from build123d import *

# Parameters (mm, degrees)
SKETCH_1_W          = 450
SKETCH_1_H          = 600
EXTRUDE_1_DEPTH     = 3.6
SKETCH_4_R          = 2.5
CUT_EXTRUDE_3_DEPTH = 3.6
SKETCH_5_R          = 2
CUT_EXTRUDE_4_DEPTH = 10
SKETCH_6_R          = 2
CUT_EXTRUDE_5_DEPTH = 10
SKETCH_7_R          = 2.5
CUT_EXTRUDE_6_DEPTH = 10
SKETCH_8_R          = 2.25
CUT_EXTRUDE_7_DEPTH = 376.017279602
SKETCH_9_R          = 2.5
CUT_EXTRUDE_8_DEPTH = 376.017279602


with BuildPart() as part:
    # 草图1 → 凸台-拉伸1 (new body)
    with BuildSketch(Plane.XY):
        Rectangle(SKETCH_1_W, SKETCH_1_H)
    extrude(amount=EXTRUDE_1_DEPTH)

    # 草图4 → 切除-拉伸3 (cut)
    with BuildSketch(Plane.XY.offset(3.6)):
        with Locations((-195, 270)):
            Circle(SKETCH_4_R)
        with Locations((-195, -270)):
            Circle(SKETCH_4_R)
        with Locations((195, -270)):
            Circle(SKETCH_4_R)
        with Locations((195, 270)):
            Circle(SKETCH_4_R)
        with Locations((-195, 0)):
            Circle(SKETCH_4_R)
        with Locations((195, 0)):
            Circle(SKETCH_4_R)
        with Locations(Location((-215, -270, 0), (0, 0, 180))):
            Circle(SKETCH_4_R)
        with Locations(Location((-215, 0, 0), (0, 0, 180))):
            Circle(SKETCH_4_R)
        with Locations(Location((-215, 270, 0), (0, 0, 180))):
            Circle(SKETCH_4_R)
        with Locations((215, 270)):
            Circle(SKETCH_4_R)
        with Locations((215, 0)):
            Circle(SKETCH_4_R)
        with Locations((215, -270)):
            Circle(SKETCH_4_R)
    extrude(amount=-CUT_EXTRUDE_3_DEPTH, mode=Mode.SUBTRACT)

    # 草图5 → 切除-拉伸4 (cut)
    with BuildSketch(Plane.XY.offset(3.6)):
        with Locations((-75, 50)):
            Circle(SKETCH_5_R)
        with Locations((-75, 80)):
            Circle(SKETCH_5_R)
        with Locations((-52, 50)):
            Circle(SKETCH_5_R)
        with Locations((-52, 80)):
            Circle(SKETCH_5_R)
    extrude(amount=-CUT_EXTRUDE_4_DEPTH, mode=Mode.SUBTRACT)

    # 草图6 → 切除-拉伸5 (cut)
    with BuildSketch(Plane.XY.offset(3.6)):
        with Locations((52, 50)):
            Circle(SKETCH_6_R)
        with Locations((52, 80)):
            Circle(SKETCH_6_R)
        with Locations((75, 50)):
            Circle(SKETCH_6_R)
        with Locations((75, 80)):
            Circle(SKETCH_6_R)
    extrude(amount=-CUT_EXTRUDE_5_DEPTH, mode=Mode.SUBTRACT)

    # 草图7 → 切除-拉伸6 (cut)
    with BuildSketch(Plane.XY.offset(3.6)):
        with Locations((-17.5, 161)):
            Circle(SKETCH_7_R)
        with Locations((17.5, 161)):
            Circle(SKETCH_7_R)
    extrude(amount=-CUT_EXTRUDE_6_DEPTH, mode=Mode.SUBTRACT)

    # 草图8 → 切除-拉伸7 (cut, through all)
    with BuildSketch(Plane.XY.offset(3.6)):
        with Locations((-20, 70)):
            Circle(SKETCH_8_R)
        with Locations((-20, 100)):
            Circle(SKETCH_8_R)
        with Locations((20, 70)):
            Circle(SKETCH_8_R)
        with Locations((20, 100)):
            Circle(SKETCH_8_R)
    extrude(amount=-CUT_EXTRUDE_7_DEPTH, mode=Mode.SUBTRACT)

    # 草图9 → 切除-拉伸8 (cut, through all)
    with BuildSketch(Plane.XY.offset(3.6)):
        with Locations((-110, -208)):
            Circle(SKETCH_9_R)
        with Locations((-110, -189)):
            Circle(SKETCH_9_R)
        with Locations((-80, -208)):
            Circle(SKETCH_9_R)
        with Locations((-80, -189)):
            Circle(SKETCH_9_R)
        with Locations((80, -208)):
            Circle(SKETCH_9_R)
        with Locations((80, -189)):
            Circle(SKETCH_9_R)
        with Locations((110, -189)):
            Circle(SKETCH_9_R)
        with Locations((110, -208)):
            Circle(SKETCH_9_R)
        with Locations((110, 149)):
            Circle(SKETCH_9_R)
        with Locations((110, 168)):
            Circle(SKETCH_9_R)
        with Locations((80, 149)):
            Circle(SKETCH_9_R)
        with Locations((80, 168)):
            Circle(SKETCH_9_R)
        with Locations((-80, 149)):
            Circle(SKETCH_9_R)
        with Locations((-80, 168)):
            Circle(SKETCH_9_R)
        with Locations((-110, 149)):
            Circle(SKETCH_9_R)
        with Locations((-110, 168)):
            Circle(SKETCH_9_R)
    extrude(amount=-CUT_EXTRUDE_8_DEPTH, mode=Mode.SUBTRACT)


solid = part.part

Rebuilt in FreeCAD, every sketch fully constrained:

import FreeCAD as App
import Part
import Sketcher

V = App.Vector
Q = App.Units.Quantity


def add_polygon(sketch, points):
    """Adds a closed chain of lines whose ends are joined by coincident constraints."""
    first, n = sketch.GeometryCount, len(points)
    for a, b in zip(points, points[1:] + points[:1]):
        sketch.addGeometry(Part.LineSegment(App.Vector(*a, 0), App.Vector(*b, 0)), False)
    for i in range(n):
        sketch.addConstraint(Sketcher.Constraint("Coincident", first + i, 2, first + (i + 1) % n, 1))

doc = App.newDocument("Part")
body = doc.addObject("PartDesign::Body", "Body")

sketch1 = body.newObject("Sketcher::SketchObject", "Sketch")
sketch1.AttachmentSupport = (doc.getObject("XY_Plane"), [""])
sketch1.MapMode = "FlatFace"
add_polygon(sketch1, [(-225, 300), (-225, -300), (225, -300), (225, 300)])
sketch1.addConstraint(Sketcher.Constraint("Vertical", 0))
sketch1.addConstraint(Sketcher.Constraint("Horizontal", 1))
sketch1.addConstraint(Sketcher.Constraint("Vertical", 2))
sketch1.addConstraint(Sketcher.Constraint("Horizontal", 3))
sketch1.addConstraint(Sketcher.Constraint("Symmetric", 0, 2, 2, 2, -1, 1))
sketch1.addConstraint(Sketcher.Constraint("DistanceX", 1, 1, 1, 2, Q("450 mm")))
sketch1.addConstraint(Sketcher.Constraint("DistanceY", 0, 2, 0, 1, Q("600 mm")))
pad1 = body.newObject("PartDesign::Pad", "Pad")
pad1.Profile = sketch1
pad1.Length = 3.6

sketch2 = body.newObject("Sketcher::SketchObject", "Sketch001")
sketch2.AttachmentSupport = (doc.getObject("XY_Plane"), [""])
sketch2.MapMode = "FlatFace"
sketch2.AttachmentOffset = App.Placement(V(0, 0, 3.6), App.Rotation())
sketch2.addGeometry(Part.Circle(V(-195, 270, 0), V(0, 0, 1), 2.5), False)
sketch2.addGeometry(Part.Circle(V(-195, -270, 0), V(0, 0, 1), 2.5), False)
sketch2.addGeometry(Part.Circle(V(195, -270, 0), V(0, 0, 1), 2.5), False)
sketch2.addGeometry(Part.Circle(V(195, 270, 0), V(0, 0, 1), 2.5), False)
sketch2.addGeometry(Part.Circle(V(-195, 0, 0), V(0, 0, 1), 2.5), False)
sketch2.addGeometry(Part.Circle(V(195, 0, 0), V(0, 0, 1), 2.5), False)
sketch2.addGeometry(Part.Circle(V(-215, -270, 0), V(0, 0, 1), 2.5), False)
sketch2.addGeometry(Part.Circle(V(-215, 0, 0), V(0, 0, 1), 2.5), False)
sketch2.addGeometry(Part.Circle(V(-215, 270, 0), V(0, 0, 1), 2.5), False)
sketch2.addGeometry(Part.Circle(V(215, 270, 0), V(0, 0, 1), 2.5), False)
sketch2.addGeometry(Part.Circle(V(215, 0, 0), V(0, 0, 1), 2.5), False)
sketch2.addGeometry(Part.Circle(V(215, -270, 0), V(0, 0, 1), 2.5), False)
sketch2.addConstraint(Sketcher.Constraint("Equal", 0, 1))
sketch2.addConstraint(Sketcher.Constraint("Equal", 1, 2))
sketch2.addConstraint(Sketcher.Constraint("Equal", 2, 3))
sketch2.addConstraint(Sketcher.Constraint("Equal", 3, 4))
sketch2.addConstraint(Sketcher.Constraint("Equal", 4, 5))
sketch2.addConstraint(Sketcher.Constraint("Equal", 5, 6))
sketch2.addConstraint(Sketcher.Constraint("Equal", 6, 7))
sketch2.addConstraint(Sketcher.Constraint("Equal", 7, 8))
sketch2.addConstraint(Sketcher.Constraint("Equal", 8, 9))
sketch2.addConstraint(Sketcher.Constraint("Equal", 9, 10))
sketch2.addConstraint(Sketcher.Constraint("Equal", 10, 11))
sketch2.addConstraint(Sketcher.Constraint("Symmetric", 0, 3, 2, 3, -1, 1))
sketch2.addConstraint(Sketcher.Constraint("Symmetric", 1, 3, 3, 3, -1, 1))
sketch2.addConstraint(Sketcher.Constraint("Symmetric", 4, 3, 5, 3, -1, 1))
sketch2.addConstraint(Sketcher.Constraint("Symmetric", 6, 3, 9, 3, -1, 1))
sketch2.addConstraint(Sketcher.Constraint("Symmetric", 7, 3, 10, 3, -1, 1))
sketch2.addConstraint(Sketcher.Constraint("Symmetric", 8, 3, 11, 3, -1, 1))
sketch2.addConstraint(Sketcher.Constraint("Symmetric", 1, 3, 2, 3, -2))
sketch2.addConstraint(Sketcher.Constraint("Symmetric", 8, 3, 9, 3, -2))
sketch2.addConstraint(Sketcher.Constraint("PointOnObject", 4, 3, -1))
sketch2.addConstraint(Sketcher.Constraint("PointOnObject", 7, 3, -1))
sketch2.addConstraint(Sketcher.Constraint("Horizontal", 2, 3, 6, 3))
sketch2.addConstraint(Sketcher.Constraint("Vertical", 1, 3, 4, 3))
sketch2.addConstraint(Sketcher.Constraint("Vertical", 6, 3, 7, 3))
sketch2.addConstraint(Sketcher.Constraint("Diameter", 0, Q("5 mm")))
sketch2.addConstraint(Sketcher.Constraint("DistanceX", 0, 3, -1, 1, Q("195 mm")))
sketch2.addConstraint(Sketcher.Constraint("DistanceY", -1, 1, 0, 3, Q("270 mm")))
sketch2.addConstraint(Sketcher.Constraint("DistanceX", 6, 3, -1, 1, Q("215 mm")))
pocket1 = body.newObject("PartDesign::Pocket", "Pocket")
pocket1.Profile = sketch2
pocket1.Length = 3.6

sketch3 = body.newObject("Sketcher::SketchObject", "Sketch002")
sketch3.AttachmentSupport = (doc.getObject("XY_Plane"), [""])
sketch3.MapMode = "FlatFace"
sketch3.AttachmentOffset = App.Placement(V(0, 0, 3.6), App.Rotation())
sketch3.addGeometry(Part.Circle(V(-75, 50, 0), V(0, 0, 1), 2), False)
sketch3.addGeometry(Part.Circle(V(-75, 80, 0), V(0, 0, 1), 2), False)
sketch3.addGeometry(Part.Circle(V(-52, 50, 0), V(0, 0, 1), 2), False)
sketch3.addGeometry(Part.Circle(V(-52, 80, 0), V(0, 0, 1), 2), False)
sketch3.addConstraint(Sketcher.Constraint("Equal", 0, 1))
sketch3.addConstraint(Sketcher.Constraint("Equal", 1, 2))
sketch3.addConstraint(Sketcher.Constraint("Equal", 2, 3))
sketch3.addConstraint(Sketcher.Constraint("Horizontal", 0, 3, 2, 3))
sketch3.addConstraint(Sketcher.Constraint("Horizontal", 1, 3, 3, 3))
sketch3.addConstraint(Sketcher.Constraint("Vertical", 0, 3, 1, 3))
sketch3.addConstraint(Sketcher.Constraint("Vertical", 2, 3, 3, 3))
sketch3.addConstraint(Sketcher.Constraint("Diameter", 0, Q("4 mm")))
sketch3.addConstraint(Sketcher.Constraint("DistanceX", 0, 3, -1, 1, Q("75 mm")))
sketch3.addConstraint(Sketcher.Constraint("DistanceY", -1, 1, 0, 3, Q("50 mm")))
sketch3.addConstraint(Sketcher.Constraint("DistanceY", -1, 1, 1, 3, Q("80 mm")))
sketch3.addConstraint(Sketcher.Constraint("DistanceX", 2, 3, -1, 1, Q("52 mm")))
pocket2 = body.newObject("PartDesign::Pocket", "Pocket001")
pocket2.Profile = sketch3
pocket2.Length = 10

sketch4 = body.newObject("Sketcher::SketchObject", "Sketch003")
sketch4.AttachmentSupport = (doc.getObject("XY_Plane"), [""])
sketch4.MapMode = "FlatFace"
sketch4.AttachmentOffset = App.Placement(V(0, 0, 3.6), App.Rotation())
sketch4.addGeometry(Part.Circle(V(52, 50, 0), V(0, 0, 1), 2), False)
sketch4.addGeometry(Part.Circle(V(52, 80, 0), V(0, 0, 1), 2), False)
sketch4.addGeometry(Part.Circle(V(75, 50, 0), V(0, 0, 1), 2), False)
sketch4.addGeometry(Part.Circle(V(75, 80, 0), V(0, 0, 1), 2), False)
sketch4.addConstraint(Sketcher.Constraint("Equal", 0, 1))
sketch4.addConstraint(Sketcher.Constraint("Equal", 1, 2))
sketch4.addConstraint(Sketcher.Constraint("Equal", 2, 3))
sketch4.addConstraint(Sketcher.Constraint("Horizontal", 0, 3, 2, 3))
sketch4.addConstraint(Sketcher.Constraint("Horizontal", 1, 3, 3, 3))
sketch4.addConstraint(Sketcher.Constraint("Vertical", 0, 3, 1, 3))
sketch4.addConstraint(Sketcher.Constraint("Vertical", 2, 3, 3, 3))
sketch4.addConstraint(Sketcher.Constraint("Diameter", 0, Q("4 mm")))
sketch4.addConstraint(Sketcher.Constraint("DistanceX", -1, 1, 0, 3, Q("52 mm")))
sketch4.addConstraint(Sketcher.Constraint("DistanceY", -1, 1, 0, 3, Q("50 mm")))
sketch4.addConstraint(Sketcher.Constraint("DistanceY", -1, 1, 1, 3, Q("80 mm")))
sketch4.addConstraint(Sketcher.Constraint("DistanceX", -1, 1, 2, 3, Q("75 mm")))
pocket3 = body.newObject("PartDesign::Pocket", "Pocket002")
pocket3.Profile = sketch4
pocket3.Length = 10

sketch5 = body.newObject("Sketcher::SketchObject", "Sketch004")
sketch5.AttachmentSupport = (doc.getObject("XY_Plane"), [""])
sketch5.MapMode = "FlatFace"
sketch5.AttachmentOffset = App.Placement(V(0, 0, 3.6), App.Rotation())
sketch5.addGeometry(Part.Circle(V(-17.5, 161, 0), V(0, 0, 1), 2.5), False)
sketch5.addGeometry(Part.Circle(V(17.5, 161, 0), V(0, 0, 1), 2.5), False)
sketch5.addConstraint(Sketcher.Constraint("Equal", 0, 1))
sketch5.addConstraint(Sketcher.Constraint("Symmetric", 0, 3, 1, 3, -2))
sketch5.addConstraint(Sketcher.Constraint("Diameter", 0, Q("5 mm")))
sketch5.addConstraint(Sketcher.Constraint("DistanceY", -1, 1, 0, 3, Q("161 mm")))
sketch5.addConstraint(Sketcher.Constraint("DistanceX", 0, 3, 1, 3, Q("35 mm")))
pocket4 = body.newObject("PartDesign::Pocket", "Pocket003")
pocket4.Profile = sketch5
pocket4.Length = 10

sketch6 = body.newObject("Sketcher::SketchObject", "Sketch005")
sketch6.AttachmentSupport = (doc.getObject("XY_Plane"), [""])
sketch6.MapMode = "FlatFace"
sketch6.AttachmentOffset = App.Placement(V(0, 0, 3.6), App.Rotation())
sketch6.addGeometry(Part.Circle(V(-20, 70, 0), V(0, 0, 1), 2.2), False)
sketch6.addGeometry(Part.Circle(V(-20, 100, 0), V(0, 0, 1), 2.2), False)
sketch6.addGeometry(Part.Circle(V(20, 70, 0), V(0, 0, 1), 2.2), False)
sketch6.addGeometry(Part.Circle(V(20, 100, 0), V(0, 0, 1), 2.2), False)
sketch6.addConstraint(Sketcher.Constraint("Equal", 0, 1))
sketch6.addConstraint(Sketcher.Constraint("Equal", 1, 2))
sketch6.addConstraint(Sketcher.Constraint("Equal", 2, 3))
sketch6.addConstraint(Sketcher.Constraint("Symmetric", 0, 3, 2, 3, -2))
sketch6.addConstraint(Sketcher.Constraint("Symmetric", 1, 3, 3, 3, -2))
sketch6.addConstraint(Sketcher.Constraint("Vertical", 0, 3, 1, 3))
sketch6.addConstraint(Sketcher.Constraint("Diameter", 0, Q("4.5 mm")))
sketch6.addConstraint(Sketcher.Constraint("DistanceX", 0, 3, -1, 1, Q("20 mm")))
sketch6.addConstraint(Sketcher.Constraint("DistanceY", -1, 1, 0, 3, Q("70 mm")))
sketch6.addConstraint(Sketcher.Constraint("DistanceY", -1, 1, 1, 3, Q("100 mm")))
pocket5 = body.newObject("PartDesign::Pocket", "Pocket004")
pocket5.Profile = sketch6
pocket5.Type = "ThroughAll"

sketch7 = body.newObject("Sketcher::SketchObject", "Sketch006")
sketch7.AttachmentSupport = (doc.getObject("XY_Plane"), [""])
sketch7.MapMode = "FlatFace"
sketch7.AttachmentOffset = App.Placement(V(0, 0, 3.6), App.Rotation())
sketch7.addGeometry(Part.Circle(V(-110, -208, 0), V(0, 0, 1), 2.5), False)
sketch7.addGeometry(Part.Circle(V(-110, -189, 0), V(0, 0, 1), 2.5), False)
sketch7.addGeometry(Part.Circle(V(-80, -208, 0), V(0, 0, 1), 2.5), False)
sketch7.addGeometry(Part.Circle(V(-80, -189, 0), V(0, 0, 1), 2.5), False)
sketch7.addGeometry(Part.Circle(V(80, -208, 0), V(0, 0, 1), 2.5), False)
sketch7.addGeometry(Part.Circle(V(80, -189, 0), V(0, 0, 1), 2.5), False)
sketch7.addGeometry(Part.Circle(V(110, -189, 0), V(0, 0, 1), 2.5), False)
sketch7.addGeometry(Part.Circle(V(110, -208, 0), V(0, 0, 1), 2.5), False)
sketch7.addGeometry(Part.Circle(V(110, 149, 0), V(0, 0, 1), 2.5), False)
sketch7.addGeometry(Part.Circle(V(110, 168, 0), V(0, 0, 1), 2.5), False)
sketch7.addGeometry(Part.Circle(V(80, 149, 0), V(0, 0, 1), 2.5), False)
sketch7.addGeometry(Part.Circle(V(80, 168, 0), V(0, 0, 1), 2.5), False)
sketch7.addGeometry(Part.Circle(V(-80, 149, 0), V(0, 0, 1), 2.5), False)
sketch7.addGeometry(Part.Circle(V(-80, 168, 0), V(0, 0, 1), 2.5), False)
sketch7.addGeometry(Part.Circle(V(-110, 149, 0), V(0, 0, 1), 2.5), False)
sketch7.addGeometry(Part.Circle(V(-110, 168, 0), V(0, 0, 1), 2.5), False)
sketch7.addConstraint(Sketcher.Constraint("Equal", 0, 1))
sketch7.addConstraint(Sketcher.Constraint("Equal", 1, 2))
sketch7.addConstraint(Sketcher.Constraint("Equal", 2, 3))
sketch7.addConstraint(Sketcher.Constraint("Equal", 3, 4))
sketch7.addConstraint(Sketcher.Constraint("Equal", 4, 5))
sketch7.addConstraint(Sketcher.Constraint("Equal", 5, 6))
sketch7.addConstraint(Sketcher.Constraint("Equal", 6, 7))
sketch7.addConstraint(Sketcher.Constraint("Equal", 7, 8))
sketch7.addConstraint(Sketcher.Constraint("Equal", 8, 9))
sketch7.addConstraint(Sketcher.Constraint("Equal", 9, 10))
sketch7.addConstraint(Sketcher.Constraint("Equal", 10, 11))
sketch7.addConstraint(Sketcher.Constraint("Equal", 11, 12))
sketch7.addConstraint(Sketcher.Constraint("Equal", 12, 13))
sketch7.addConstraint(Sketcher.Constraint("Equal", 13, 14))
sketch7.addConstraint(Sketcher.Constraint("Equal", 14, 15))
sketch7.addConstraint(Sketcher.Constraint("Symmetric", 2, 3, 4, 3, -2))
sketch7.addConstraint(Sketcher.Constraint("Symmetric", 3, 3, 5, 3, -2))
sketch7.addConstraint(Sketcher.Constraint("Symmetric", 1, 3, 6, 3, -2))
sketch7.addConstraint(Sketcher.Constraint("Symmetric", 0, 3, 7, 3, -2))
sketch7.addConstraint(Sketcher.Constraint("Symmetric", 10, 3, 12, 3, -2))
sketch7.addConstraint(Sketcher.Constraint("Symmetric", 11, 3, 13, 3, -2))
sketch7.addConstraint(Sketcher.Constraint("Symmetric", 8, 3, 14, 3, -2))
sketch7.addConstraint(Sketcher.Constraint("Symmetric", 9, 3, 15, 3, -2))
sketch7.addConstraint(Sketcher.Constraint("Horizontal", 0, 3, 2, 3))
sketch7.addConstraint(Sketcher.Constraint("Horizontal", 1, 3, 3, 3))
sketch7.addConstraint(Sketcher.Constraint("Horizontal", 8, 3, 10, 3))
sketch7.addConstraint(Sketcher.Constraint("Horizontal", 9, 3, 11, 3))
sketch7.addConstraint(Sketcher.Constraint("Vertical", 0, 3, 1, 3))
sketch7.addConstraint(Sketcher.Constraint("Vertical", 2, 3, 3, 3))
sketch7.addConstraint(Sketcher.Constraint("Vertical", 7, 3, 8, 3))
sketch7.addConstraint(Sketcher.Constraint("Vertical", 8, 3, 9, 3))
sketch7.addConstraint(Sketcher.Constraint("Vertical", 5, 3, 10, 3))
sketch7.addConstraint(Sketcher.Constraint("Vertical", 10, 3, 11, 3))
sketch7.addConstraint(Sketcher.Constraint("Diameter", 0, Q("5 mm")))
sketch7.addConstraint(Sketcher.Constraint("DistanceX", 0, 3, -1, 1, Q("110 mm")))
sketch7.addConstraint(Sketcher.Constraint("DistanceY", 0, 3, -1, 1, Q("208 mm")))
sketch7.addConstraint(Sketcher.Constraint("DistanceY", 1, 3, -1, 1, Q("189 mm")))
sketch7.addConstraint(Sketcher.Constraint("DistanceX", 2, 3, -1, 1, Q("80 mm")))
sketch7.addConstraint(Sketcher.Constraint("DistanceY", -1, 1, 8, 3, Q("149 mm")))
sketch7.addConstraint(Sketcher.Constraint("DistanceY", -1, 1, 9, 3, Q("168 mm")))
pocket6 = body.newObject("PartDesign::Pocket", "Pocket005")
pocket6.Profile = sketch7
pocket6.Type = "ThroughAll"

doc.recompute()
